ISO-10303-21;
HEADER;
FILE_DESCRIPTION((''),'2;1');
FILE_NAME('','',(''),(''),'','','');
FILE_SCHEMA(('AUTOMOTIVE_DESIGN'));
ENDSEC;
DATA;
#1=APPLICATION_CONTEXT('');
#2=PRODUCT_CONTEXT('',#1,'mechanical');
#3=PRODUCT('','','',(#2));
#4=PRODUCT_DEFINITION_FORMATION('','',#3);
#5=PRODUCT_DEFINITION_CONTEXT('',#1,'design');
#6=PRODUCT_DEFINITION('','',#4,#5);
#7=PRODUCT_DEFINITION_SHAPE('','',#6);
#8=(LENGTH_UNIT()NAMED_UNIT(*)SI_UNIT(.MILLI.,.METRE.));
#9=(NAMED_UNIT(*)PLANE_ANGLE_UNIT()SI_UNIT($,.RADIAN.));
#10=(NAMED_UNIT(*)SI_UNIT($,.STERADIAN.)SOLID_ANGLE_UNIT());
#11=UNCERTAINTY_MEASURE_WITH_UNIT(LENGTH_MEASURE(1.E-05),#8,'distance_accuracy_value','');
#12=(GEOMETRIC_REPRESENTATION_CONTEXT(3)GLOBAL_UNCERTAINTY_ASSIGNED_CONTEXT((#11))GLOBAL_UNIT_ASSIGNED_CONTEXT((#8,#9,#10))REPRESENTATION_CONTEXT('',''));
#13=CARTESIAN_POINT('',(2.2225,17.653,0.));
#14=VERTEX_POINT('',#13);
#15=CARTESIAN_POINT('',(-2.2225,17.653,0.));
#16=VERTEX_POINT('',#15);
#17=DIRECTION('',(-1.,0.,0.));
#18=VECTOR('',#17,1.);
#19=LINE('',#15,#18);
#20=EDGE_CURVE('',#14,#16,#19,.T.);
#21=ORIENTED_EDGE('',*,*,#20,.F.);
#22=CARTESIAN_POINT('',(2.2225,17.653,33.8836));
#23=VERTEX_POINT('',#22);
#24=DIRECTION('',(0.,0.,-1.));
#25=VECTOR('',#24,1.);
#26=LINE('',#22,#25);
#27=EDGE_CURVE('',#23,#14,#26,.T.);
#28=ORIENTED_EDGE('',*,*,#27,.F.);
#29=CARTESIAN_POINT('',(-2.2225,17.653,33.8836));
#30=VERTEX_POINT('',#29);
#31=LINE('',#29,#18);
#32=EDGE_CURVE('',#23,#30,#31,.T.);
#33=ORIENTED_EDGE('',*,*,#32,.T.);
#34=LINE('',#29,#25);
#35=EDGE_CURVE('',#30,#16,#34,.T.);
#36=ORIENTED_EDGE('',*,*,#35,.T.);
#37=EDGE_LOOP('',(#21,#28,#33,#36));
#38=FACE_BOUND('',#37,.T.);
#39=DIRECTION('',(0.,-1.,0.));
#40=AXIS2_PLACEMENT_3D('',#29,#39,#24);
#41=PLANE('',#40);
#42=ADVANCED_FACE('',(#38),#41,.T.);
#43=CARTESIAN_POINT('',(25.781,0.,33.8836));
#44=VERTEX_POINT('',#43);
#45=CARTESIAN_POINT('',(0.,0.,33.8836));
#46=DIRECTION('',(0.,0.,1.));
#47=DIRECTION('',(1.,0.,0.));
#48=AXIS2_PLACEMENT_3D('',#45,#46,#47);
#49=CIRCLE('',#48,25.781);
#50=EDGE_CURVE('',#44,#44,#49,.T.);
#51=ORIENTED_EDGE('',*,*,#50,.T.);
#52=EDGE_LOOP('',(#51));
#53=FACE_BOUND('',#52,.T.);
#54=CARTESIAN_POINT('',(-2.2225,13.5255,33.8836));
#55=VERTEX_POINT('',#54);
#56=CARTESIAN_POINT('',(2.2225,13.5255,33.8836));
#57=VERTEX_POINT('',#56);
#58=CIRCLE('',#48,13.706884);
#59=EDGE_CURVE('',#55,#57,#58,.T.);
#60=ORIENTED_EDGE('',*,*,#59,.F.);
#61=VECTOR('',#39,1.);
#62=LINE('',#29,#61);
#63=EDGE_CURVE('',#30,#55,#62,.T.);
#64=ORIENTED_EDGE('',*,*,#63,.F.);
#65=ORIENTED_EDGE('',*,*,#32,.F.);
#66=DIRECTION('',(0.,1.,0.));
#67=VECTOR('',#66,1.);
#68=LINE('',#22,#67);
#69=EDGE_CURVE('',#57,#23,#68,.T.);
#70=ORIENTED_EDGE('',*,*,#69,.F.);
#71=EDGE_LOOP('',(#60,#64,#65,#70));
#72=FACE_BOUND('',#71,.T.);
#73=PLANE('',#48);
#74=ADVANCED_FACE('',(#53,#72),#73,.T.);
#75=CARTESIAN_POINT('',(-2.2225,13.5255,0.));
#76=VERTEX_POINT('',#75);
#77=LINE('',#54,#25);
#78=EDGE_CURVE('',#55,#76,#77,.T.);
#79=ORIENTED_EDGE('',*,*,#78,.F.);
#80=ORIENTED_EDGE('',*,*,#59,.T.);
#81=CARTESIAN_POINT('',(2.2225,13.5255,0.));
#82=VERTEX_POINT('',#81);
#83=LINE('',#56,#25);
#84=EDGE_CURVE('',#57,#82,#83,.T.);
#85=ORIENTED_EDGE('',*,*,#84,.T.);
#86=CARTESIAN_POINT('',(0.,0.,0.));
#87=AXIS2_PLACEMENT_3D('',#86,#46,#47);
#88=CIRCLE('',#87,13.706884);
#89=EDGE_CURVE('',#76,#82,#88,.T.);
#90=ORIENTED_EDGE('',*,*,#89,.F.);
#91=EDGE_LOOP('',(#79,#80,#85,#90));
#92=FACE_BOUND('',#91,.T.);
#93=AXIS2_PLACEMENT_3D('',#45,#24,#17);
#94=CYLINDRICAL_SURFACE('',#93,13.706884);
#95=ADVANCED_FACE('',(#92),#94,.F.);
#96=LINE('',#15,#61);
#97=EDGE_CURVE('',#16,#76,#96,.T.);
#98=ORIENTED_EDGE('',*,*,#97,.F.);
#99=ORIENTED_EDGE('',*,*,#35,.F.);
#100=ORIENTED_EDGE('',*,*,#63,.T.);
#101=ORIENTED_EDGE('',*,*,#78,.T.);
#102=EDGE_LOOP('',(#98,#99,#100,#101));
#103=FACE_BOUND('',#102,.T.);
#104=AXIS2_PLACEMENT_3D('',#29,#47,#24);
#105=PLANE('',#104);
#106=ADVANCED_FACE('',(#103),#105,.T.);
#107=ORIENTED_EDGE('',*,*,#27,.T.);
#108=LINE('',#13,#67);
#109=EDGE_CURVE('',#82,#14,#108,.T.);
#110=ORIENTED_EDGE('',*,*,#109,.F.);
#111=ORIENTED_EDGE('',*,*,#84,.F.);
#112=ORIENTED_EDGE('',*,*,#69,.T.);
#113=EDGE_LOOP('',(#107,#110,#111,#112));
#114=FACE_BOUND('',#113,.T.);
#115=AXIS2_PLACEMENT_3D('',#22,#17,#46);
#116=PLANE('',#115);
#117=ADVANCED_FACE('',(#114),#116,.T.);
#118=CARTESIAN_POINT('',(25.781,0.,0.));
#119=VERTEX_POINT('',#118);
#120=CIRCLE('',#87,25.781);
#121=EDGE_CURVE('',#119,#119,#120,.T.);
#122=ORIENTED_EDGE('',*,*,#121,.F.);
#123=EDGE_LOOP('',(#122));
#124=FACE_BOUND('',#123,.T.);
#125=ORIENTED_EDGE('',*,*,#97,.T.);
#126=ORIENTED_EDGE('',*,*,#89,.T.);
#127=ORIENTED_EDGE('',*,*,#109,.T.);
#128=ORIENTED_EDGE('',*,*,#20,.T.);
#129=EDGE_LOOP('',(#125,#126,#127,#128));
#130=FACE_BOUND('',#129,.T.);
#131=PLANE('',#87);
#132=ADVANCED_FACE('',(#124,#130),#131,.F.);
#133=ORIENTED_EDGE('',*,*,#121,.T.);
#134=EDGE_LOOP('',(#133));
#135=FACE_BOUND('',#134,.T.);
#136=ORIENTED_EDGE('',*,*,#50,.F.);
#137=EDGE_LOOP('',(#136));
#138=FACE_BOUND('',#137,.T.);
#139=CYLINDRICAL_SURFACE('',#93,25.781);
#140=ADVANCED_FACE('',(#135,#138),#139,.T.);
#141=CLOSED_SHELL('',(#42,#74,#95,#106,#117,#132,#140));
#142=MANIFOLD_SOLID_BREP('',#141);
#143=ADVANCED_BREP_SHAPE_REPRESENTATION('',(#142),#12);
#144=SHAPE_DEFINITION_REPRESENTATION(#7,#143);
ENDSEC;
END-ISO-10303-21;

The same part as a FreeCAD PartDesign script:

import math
import FreeCAD as App
import Part
import Sketcher

V = App.Vector
Q = App.Units.Quantity

doc = App.newDocument("Part")
body = doc.addObject("PartDesign::Body", "Body")

# Sketch on XY plane
sketch1 = body.newObject("Sketcher::SketchObject", "Sketch")
sketch1.AttachmentSupport = (doc.getObject("XY_Plane"), [""])
sketch1.MapMode = "FlatFace"
sketch1.addGeometry(Part.Circle(V(0, 0, 0), V(0, 0, 1), 25.781), False)
sketch1.addGeometry(Part.LineSegment(V(-2.2225, 13.5255, 0), V(-2.2225, 17.653, 0)), False)
sketch1.addGeometry(Part.LineSegment(V(-2.2225, 17.653, 0), V(2.2225, 17.653, 0)), False)
sketch1.addGeometry(Part.LineSegment(V(2.2225, 17.653, 0), V(2.2225, 13.5255, 0)), False)
sketch1.addGeometry(Part.ArcOfCircle(Part.Circle(V(0, 0, 0), V(0, 0, 1), 13.706884), math.radians(99.331411), math.radians(440.668589)), False)
sketch1.addConstraint(Sketcher.Constraint("Coincident", 1, 2, 2, 1))
sketch1.addConstraint(Sketcher.Constraint("Coincident", 2, 2, 3, 1))
sketch1.addConstraint(Sketcher.Constraint("Coincident", 3, 2, 4, 2))
sketch1.addConstraint(Sketcher.Constraint("Coincident", 4, 1, 1, 1))
sketch1.addConstraint(Sketcher.Constraint("Vertical", 1))
sketch1.addConstraint(Sketcher.Constraint("Horizontal", 2))
sketch1.addConstraint(Sketcher.Constraint("Vertical", 3))
sketch1.addConstraint(Sketcher.Constraint("Coincident", 0, 3, -1, 1))
sketch1.addConstraint(Sketcher.Constraint("Coincident", 4, 3, -1, 1))
sketch1.addConstraint(Sketcher.Constraint("Horizontal", 3, 2, 4, 1))
sketch1.addConstraint(Sketcher.Constraint("Diameter", 0, Q("2.03 in")))
sketch1.addConstraint(Sketcher.Constraint("DistanceX", 2, 1, 2, 2, Q("0.175 in")))
sketch1.addConstraint(Sketcher.Constraint("DistanceY", 1, 1, 1, 2, Q("0.1625 in")))
sketch1.addConstraint(Sketcher.Constraint("DistanceY", -1, 1, 1, 2, Q("0.695 in")))
pad1 = body.newObject("PartDesign::Pad", "Pad")
pad1.Profile = sketch1
pad1.Length = Q("1.334 in")

doc.recompute()
